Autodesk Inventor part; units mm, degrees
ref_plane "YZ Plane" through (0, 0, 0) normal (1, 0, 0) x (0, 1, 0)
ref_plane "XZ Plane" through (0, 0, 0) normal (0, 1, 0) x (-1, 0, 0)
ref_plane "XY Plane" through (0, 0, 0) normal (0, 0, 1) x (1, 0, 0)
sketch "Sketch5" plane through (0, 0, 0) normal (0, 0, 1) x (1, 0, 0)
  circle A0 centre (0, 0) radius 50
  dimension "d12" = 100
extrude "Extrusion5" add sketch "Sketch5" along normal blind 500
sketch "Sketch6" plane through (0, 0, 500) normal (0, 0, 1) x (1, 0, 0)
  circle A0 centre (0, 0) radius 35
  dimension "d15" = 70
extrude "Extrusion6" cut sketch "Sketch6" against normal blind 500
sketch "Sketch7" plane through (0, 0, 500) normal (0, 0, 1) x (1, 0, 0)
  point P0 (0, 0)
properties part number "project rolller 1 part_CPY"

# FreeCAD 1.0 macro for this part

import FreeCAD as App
import Part
import Sketcher

doc = App.newDocument("Part")
body = doc.addObject("PartDesign::Body", "Body")

sketch1 = body.newObject("Sketcher::SketchObject", "Sketch")
sketch1.AttachmentSupport = (doc.getObject("XY_Plane"), [""])
sketch1.MapMode = "FlatFace"
sketch1.addGeometry(Part.Circle(App.Vector(0, 0, 0), App.Vector(0, 0, 1), 50), False)
sketch1.addConstraint([
    Sketcher.Constraint("Coincident", 0, 3, -1, 1),
    Sketcher.Constraint("Diameter", 0, 100.0),
])
pad1 = body.newObject("PartDesign::Pad", "Pad")
pad1.Profile = sketch1
pad1.Length = 500

sketch2 = body.newObject("Sketcher::SketchObject", "Sketch001")
sketch2.AttachmentSupport = (doc.getObject("XY_Plane"), [""])
sketch2.MapMode = "FlatFace"
sketch2.AttachmentOffset = App.Placement(App.Vector(0, 0, 500), App.Rotation())
sketch2.addGeometry(Part.Circle(App.Vector(0, 0, 0), App.Vector(0, 0, 1), 35), False)
sketch2.addConstraint([
    Sketcher.Constraint("Coincident", 0, 3, -1, 1),
    Sketcher.Constraint("Diameter", 0, 70.0),
])
pocket1 = body.newObject("PartDesign::Pocket", "Pocket")
pocket1.Profile = sketch2
pocket1.Length = 500

doc.recompute()
